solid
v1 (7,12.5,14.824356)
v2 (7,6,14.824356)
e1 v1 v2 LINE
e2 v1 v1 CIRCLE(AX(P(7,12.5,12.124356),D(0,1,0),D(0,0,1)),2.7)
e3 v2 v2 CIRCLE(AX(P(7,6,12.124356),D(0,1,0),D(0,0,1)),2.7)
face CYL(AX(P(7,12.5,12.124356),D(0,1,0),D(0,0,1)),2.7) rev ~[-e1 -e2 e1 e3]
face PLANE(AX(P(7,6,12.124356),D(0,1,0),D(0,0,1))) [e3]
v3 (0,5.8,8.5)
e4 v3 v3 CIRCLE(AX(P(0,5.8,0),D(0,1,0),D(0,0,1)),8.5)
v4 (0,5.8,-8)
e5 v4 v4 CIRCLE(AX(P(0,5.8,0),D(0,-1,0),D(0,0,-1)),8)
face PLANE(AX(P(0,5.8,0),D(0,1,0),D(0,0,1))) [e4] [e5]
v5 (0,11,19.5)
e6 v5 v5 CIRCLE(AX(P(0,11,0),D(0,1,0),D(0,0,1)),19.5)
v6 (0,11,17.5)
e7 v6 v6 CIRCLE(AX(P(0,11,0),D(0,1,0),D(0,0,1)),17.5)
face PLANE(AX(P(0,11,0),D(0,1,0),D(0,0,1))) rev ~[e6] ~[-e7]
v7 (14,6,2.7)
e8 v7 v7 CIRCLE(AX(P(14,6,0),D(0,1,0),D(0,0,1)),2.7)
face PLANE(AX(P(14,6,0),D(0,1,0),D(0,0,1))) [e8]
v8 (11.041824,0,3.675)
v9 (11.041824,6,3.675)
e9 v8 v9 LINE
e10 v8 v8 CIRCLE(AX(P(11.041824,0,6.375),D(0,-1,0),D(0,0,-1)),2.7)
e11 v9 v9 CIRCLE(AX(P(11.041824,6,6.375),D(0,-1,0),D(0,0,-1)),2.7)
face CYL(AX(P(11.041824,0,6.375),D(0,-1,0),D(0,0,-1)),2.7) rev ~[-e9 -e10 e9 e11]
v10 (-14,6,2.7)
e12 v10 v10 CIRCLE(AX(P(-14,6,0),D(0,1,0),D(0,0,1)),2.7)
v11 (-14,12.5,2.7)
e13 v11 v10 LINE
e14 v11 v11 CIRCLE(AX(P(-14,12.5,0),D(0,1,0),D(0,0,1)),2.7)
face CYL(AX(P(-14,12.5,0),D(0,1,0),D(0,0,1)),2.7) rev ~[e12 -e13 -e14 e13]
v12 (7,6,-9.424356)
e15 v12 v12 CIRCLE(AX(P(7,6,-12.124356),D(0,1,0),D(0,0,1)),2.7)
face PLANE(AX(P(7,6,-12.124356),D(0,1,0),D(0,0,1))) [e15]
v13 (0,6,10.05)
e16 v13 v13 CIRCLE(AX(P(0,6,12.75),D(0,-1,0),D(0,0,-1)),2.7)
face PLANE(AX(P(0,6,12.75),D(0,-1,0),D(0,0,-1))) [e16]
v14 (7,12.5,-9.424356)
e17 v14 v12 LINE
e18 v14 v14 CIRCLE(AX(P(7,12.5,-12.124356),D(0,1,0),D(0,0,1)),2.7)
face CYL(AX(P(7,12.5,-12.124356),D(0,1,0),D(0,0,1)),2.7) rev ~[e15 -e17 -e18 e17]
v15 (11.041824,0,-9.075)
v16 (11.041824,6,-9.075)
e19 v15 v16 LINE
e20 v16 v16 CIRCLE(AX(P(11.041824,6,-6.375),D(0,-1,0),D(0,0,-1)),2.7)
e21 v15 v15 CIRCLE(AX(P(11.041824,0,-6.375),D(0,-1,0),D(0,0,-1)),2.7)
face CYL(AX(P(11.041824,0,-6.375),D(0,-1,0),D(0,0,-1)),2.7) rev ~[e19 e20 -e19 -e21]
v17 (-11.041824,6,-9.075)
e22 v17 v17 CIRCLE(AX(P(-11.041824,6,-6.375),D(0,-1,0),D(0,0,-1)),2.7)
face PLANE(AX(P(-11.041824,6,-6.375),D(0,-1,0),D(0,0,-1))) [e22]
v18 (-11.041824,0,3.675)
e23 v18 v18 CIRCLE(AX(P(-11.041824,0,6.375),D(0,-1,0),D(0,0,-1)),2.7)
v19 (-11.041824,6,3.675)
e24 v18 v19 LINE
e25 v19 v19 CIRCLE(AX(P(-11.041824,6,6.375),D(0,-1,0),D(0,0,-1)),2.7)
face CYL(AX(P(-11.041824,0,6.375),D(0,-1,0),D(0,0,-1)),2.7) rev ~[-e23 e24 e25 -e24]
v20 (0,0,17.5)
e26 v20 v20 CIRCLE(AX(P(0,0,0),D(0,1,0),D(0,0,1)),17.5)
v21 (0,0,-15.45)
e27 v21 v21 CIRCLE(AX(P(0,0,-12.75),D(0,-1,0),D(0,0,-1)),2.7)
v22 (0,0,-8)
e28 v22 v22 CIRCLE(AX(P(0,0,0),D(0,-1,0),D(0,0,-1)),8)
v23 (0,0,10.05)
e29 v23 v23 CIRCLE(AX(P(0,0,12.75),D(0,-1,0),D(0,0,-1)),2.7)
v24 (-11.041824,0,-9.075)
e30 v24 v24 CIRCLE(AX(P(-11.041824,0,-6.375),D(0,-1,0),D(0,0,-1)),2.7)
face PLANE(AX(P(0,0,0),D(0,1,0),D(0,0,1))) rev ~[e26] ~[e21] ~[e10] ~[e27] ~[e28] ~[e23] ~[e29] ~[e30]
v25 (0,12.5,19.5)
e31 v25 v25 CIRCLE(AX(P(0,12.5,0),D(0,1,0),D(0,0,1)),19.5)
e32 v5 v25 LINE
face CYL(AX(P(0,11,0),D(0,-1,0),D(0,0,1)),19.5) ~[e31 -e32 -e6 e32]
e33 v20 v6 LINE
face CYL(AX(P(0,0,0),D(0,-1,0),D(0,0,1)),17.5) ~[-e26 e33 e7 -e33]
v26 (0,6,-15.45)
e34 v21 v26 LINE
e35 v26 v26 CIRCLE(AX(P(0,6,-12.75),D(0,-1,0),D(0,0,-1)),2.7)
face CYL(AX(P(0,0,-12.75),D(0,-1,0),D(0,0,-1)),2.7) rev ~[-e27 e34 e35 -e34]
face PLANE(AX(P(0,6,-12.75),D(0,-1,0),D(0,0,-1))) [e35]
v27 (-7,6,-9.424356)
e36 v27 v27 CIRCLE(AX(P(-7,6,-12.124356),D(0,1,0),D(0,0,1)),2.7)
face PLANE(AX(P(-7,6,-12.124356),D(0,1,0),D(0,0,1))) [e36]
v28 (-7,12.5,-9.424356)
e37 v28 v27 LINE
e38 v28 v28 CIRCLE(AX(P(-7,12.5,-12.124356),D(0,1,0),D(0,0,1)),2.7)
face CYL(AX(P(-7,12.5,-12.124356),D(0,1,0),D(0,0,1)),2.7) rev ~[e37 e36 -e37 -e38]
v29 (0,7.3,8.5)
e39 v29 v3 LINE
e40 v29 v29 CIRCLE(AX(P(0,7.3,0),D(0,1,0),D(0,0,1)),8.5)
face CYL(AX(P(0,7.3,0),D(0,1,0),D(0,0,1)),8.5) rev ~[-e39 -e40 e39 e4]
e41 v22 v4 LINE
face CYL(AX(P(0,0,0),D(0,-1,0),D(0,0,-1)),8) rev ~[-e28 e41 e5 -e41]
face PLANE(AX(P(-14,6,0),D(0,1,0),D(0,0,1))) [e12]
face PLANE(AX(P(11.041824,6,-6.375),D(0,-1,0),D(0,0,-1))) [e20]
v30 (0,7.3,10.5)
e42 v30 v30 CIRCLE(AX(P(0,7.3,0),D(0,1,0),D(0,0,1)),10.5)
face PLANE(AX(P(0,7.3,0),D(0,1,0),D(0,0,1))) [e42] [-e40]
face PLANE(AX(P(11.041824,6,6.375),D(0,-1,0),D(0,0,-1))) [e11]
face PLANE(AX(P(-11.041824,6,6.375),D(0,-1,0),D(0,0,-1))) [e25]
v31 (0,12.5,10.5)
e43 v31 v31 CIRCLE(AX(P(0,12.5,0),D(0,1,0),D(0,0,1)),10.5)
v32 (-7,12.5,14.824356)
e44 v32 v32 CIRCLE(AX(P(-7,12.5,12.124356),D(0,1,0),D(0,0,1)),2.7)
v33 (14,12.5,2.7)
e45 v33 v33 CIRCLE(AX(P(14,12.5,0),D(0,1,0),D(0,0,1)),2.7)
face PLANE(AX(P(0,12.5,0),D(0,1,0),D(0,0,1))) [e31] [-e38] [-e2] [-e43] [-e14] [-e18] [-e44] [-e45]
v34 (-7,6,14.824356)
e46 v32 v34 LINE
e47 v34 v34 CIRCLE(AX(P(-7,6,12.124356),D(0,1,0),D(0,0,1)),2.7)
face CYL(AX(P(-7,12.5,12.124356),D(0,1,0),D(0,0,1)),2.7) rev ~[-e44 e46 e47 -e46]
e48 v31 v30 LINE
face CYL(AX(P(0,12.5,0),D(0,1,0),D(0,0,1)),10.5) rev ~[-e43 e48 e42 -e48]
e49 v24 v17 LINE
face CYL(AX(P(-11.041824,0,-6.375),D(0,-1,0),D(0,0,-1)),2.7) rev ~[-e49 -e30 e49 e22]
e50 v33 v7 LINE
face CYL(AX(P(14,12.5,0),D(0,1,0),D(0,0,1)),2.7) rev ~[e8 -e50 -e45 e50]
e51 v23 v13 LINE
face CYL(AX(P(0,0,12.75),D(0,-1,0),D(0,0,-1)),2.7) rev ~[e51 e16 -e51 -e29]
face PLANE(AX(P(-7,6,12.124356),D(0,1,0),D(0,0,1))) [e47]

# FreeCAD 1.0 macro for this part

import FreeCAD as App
import Part
import Sketcher
from FreeCAD import Vector

doc = App.newDocument("Part")
body = doc.addObject("PartDesign::Body", "Body")

# Sketch on XZ plane
sketch1 = body.newObject("Sketcher::SketchObject", "Sketch")
sketch1.AttachmentSupport = (doc.getObject("XZ_Plane"), [""])
sketch1.MapMode = "FlatFace"
sketch1.addGeometry(Part.Circle(Vector(0, 0, 0), Vector(0, 0, 1), 18), False)
sketch1.addConstraint([
    Sketcher.Constraint("Coincident", 0, 3, -1, 1),
    Sketcher.Constraint("Diameter", 0, 35.0),
])
pad1 = body.newObject("PartDesign::Pad", "Pad")
pad1.Profile = sketch1
pad1.Length = 11
pad1.Reversed = True

# Sketch on XZ plane
sketch2 = body.newObject("Sketcher::SketchObject", "Sketch001")
sketch2.AttachmentSupport = (doc.getObject("XZ_Plane"), [""])
sketch2.MapMode = "FlatFace"
sketch2.AttachmentOffset = App.Placement(Vector(0, 0, -11), App.Rotation())
sketch2.addGeometry(Part.Circle(Vector(0, 0, 0), Vector(0, 0, 1), 20), False)
sketch2.addConstraint([
    Sketcher.Constraint("Coincident", 0, 3, -1, 1),
    Sketcher.Constraint("Diameter", 0, 39.0),
])
pad2 = body.newObject("PartDesign::Pad", "Pad001")
pad2.Profile = sketch2
pad2.Length = 1.5
pad2.Reversed = True

# Sketch on XZ plane
sketch3 = body.newObject("Sketcher::SketchObject", "Sketch002")
sketch3.AttachmentSupport = (doc.getObject("XZ_Plane"), [""])
sketch3.MapMode = "FlatFace"
sketch3.AttachmentOffset = App.Placement(Vector(0, 0, -12.5), App.Rotation())
sketch3.addGeometry(Part.Circle(Vector(0, 0, 0), Vector(0, 0, 1), 10), False)
sketch3.addConstraint([
    Sketcher.Constraint("Coincident", 0, 3, -1, 1),
    Sketcher.Constraint("Diameter", 0, 21.0),
])
pocket1 = body.newObject("PartDesign::Pocket", "Pocket")
pocket1.Profile = sketch3
pocket1.Length = 5.2
pocket1.Reversed = True

# Sketch on XZ plane
sketch4 = body.newObject("Sketcher::SketchObject", "Sketch003")
sketch4.AttachmentSupport = (doc.getObject("XZ_Plane"), [""])
sketch4.MapMode = "FlatFace"
sketch4.AttachmentOffset = App.Placement(Vector(0, 0, -7.3), App.Rotation())
sketch4.addGeometry(Part.Circle(Vector(0, 0, 0), Vector(0, 0, 1), 8), False)
sketch4.addConstraint([
    Sketcher.Constraint("Coincident", 0, 3, -1, 1),
    Sketcher.Constraint("Diameter", 0, 17.0),
])
pocket2 = body.newObject("PartDesign::Pocket", "Pocket001")
pocket2.Profile = sketch4
pocket2.Length = 1.5
pocket2.Reversed = True

# Sketch on XZ plane
sketch5 = body.newObject("Sketcher::SketchObject", "Sketch004")
sketch5.AttachmentSupport = (doc.getObject("XZ_Plane"), [""])
sketch5.MapMode = "FlatFace"
sketch5.addGeometry(Part.Circle(Vector(0, 0, 0), Vector(0, 0, 1), 8), False)
sketch5.addConstraint([
    Sketcher.Constraint("Coincident", 0, 3, -1, 1),
    Sketcher.Constraint("Diameter", 0, 16.0),
])
pocket3 = body.newObject("PartDesign::Pocket", "Pocket002")
pocket3.Profile = sketch5
pocket3.Type = "UpToFirst"

# Sketch on XZ plane
sketch6 = body.newObject("Sketcher::SketchObject", "Sketch005")
sketch6.AttachmentSupport = (doc.getObject("XZ_Plane"), [""])
sketch6.MapMode = "FlatFace"
sketch6.addGeometry([
    Part.Circle(Vector(0, 12.8, 0), Vector(0, 0, 1), 2.7),  # 0
    Part.Circle(Vector(11, 6.4, 0), Vector(0, 0, 1), 2.7),  # 1
    Part.Circle(Vector(11, -6.4, 0), Vector(0, 0, 1), 2.7),  # 2
    Part.Circle(Vector(0, -12.8, 0), Vector(0, 0, 1), 2.7),  # 3
    Part.Circle(Vector(-11, -6.4, 0), Vector(0, 0, 1), 2.7),  # 4
    Part.Circle(Vector(-11, 6.4, 0), Vector(0, 0, 1), 2.7),  # 5
], False)
sketch6.addConstraint([
    Sketcher.Constraint("Equal", 0, 1),
    Sketcher.Constraint("Equal", 1, 2),
    Sketcher.Constraint("Equal", 2, 3),
    Sketcher.Constraint("Equal", 3, 4),
    Sketcher.Constraint("Equal", 4, 5),
    Sketcher.Constraint("Symmetric", 0, 3, 3, 3, -1, 1),
    Sketcher.Constraint("Symmetric", 1, 3, 4, 3, -1, 1),
    Sketcher.Constraint("Symmetric", 2, 3, 5, 3, -1, 1),
    Sketcher.Constraint("Symmetric", 2, 3, 4, 3, -2),
    Sketcher.Constraint("PointOnObject", 0, 3, -2),
    Sketcher.Constraint("Diameter", 0, 5.4),
    Sketcher.Constraint("DistanceY", 3, 3, 0, 3, 25.5),
    Sketcher.Constraint("DistanceY", 2, 3, 1, 3, 12.75),
    Sketcher.Constraint("DistanceX", -1, 1, 1, 3, 11.041824),
])
pocket4 = body.newObject("PartDesign::Pocket", "Pocket003")
pocket4.Profile = sketch6
pocket4.Length = 6

# Sketch on XZ plane
sketch7 = body.newObject("Sketcher::SketchObject", "Sketch006")
sketch7.AttachmentSupport = (doc.getObject("XZ_Plane"), [""])
sketch7.MapMode = "FlatFace"
sketch7.AttachmentOffset = App.Placement(Vector(0, 0, -12.5), App.Rotation())
sketch7.addGeometry([
    Part.Circle(Vector(14, 0, 0), Vector(0, 0, 1), 2.7),  # 0
    Part.Circle(Vector(7, 12.1, 0), Vector(0, 0, 1), 2.7),  # 1
    Part.Circle(Vector(-7, 12.1, 0), Vector(0, 0, 1), 2.7),  # 2
    Part.Circle(Vector(-14, 0, 0), Vector(0, 0, 1), 2.7),  # 3
    Part.Circle(Vector(-7, -12.1, 0), Vector(0, 0, 1), 2.7),  # 4
    Part.Circle(Vector(7, -12.1, 0), Vector(0, 0, 1), 2.7),  # 5
], False)
sketch7.addConstraint([
    Sketcher.Constraint("Equal", 0, 1),
    Sketcher.Constraint("Equal", 1, 2),
    Sketcher.Constraint("Equal", 2, 3),
    Sketcher.Constraint("Equal", 3, 4),
    Sketcher.Constraint("Equal", 4, 5),
    Sketcher.Constraint("Symmetric", 0, 3, 3, 3, -1, 1),
    Sketcher.Constraint("Symmetric", 1, 3, 4, 3, -1, 1),
    Sketcher.Constraint("Symmetric", 2, 3, 5, 3, -1, 1),
    Sketcher.Constraint("Symmetric", 1, 3, 2, 3, -2),
    Sketcher.Constraint("PointOnObject", 0, 3, -1),
    Sketcher.Constraint("Diameter", 0, 5.4),
    Sketcher.Constraint("DistanceX", -1, 1, 0, 3, 14.0),
    Sketcher.Constraint("DistanceX", -1, 1, 1, 3, 7.0),
    Sketcher.Constraint("DistanceY", 4, 3, 2, 3, 24.248711),
])
pocket5 = body.newObject("PartDesign::Pocket", "Pocket004")
pocket5.Profile = sketch7
pocket5.Length = 6.5
pocket5.Reversed = True

doc.recompute()
